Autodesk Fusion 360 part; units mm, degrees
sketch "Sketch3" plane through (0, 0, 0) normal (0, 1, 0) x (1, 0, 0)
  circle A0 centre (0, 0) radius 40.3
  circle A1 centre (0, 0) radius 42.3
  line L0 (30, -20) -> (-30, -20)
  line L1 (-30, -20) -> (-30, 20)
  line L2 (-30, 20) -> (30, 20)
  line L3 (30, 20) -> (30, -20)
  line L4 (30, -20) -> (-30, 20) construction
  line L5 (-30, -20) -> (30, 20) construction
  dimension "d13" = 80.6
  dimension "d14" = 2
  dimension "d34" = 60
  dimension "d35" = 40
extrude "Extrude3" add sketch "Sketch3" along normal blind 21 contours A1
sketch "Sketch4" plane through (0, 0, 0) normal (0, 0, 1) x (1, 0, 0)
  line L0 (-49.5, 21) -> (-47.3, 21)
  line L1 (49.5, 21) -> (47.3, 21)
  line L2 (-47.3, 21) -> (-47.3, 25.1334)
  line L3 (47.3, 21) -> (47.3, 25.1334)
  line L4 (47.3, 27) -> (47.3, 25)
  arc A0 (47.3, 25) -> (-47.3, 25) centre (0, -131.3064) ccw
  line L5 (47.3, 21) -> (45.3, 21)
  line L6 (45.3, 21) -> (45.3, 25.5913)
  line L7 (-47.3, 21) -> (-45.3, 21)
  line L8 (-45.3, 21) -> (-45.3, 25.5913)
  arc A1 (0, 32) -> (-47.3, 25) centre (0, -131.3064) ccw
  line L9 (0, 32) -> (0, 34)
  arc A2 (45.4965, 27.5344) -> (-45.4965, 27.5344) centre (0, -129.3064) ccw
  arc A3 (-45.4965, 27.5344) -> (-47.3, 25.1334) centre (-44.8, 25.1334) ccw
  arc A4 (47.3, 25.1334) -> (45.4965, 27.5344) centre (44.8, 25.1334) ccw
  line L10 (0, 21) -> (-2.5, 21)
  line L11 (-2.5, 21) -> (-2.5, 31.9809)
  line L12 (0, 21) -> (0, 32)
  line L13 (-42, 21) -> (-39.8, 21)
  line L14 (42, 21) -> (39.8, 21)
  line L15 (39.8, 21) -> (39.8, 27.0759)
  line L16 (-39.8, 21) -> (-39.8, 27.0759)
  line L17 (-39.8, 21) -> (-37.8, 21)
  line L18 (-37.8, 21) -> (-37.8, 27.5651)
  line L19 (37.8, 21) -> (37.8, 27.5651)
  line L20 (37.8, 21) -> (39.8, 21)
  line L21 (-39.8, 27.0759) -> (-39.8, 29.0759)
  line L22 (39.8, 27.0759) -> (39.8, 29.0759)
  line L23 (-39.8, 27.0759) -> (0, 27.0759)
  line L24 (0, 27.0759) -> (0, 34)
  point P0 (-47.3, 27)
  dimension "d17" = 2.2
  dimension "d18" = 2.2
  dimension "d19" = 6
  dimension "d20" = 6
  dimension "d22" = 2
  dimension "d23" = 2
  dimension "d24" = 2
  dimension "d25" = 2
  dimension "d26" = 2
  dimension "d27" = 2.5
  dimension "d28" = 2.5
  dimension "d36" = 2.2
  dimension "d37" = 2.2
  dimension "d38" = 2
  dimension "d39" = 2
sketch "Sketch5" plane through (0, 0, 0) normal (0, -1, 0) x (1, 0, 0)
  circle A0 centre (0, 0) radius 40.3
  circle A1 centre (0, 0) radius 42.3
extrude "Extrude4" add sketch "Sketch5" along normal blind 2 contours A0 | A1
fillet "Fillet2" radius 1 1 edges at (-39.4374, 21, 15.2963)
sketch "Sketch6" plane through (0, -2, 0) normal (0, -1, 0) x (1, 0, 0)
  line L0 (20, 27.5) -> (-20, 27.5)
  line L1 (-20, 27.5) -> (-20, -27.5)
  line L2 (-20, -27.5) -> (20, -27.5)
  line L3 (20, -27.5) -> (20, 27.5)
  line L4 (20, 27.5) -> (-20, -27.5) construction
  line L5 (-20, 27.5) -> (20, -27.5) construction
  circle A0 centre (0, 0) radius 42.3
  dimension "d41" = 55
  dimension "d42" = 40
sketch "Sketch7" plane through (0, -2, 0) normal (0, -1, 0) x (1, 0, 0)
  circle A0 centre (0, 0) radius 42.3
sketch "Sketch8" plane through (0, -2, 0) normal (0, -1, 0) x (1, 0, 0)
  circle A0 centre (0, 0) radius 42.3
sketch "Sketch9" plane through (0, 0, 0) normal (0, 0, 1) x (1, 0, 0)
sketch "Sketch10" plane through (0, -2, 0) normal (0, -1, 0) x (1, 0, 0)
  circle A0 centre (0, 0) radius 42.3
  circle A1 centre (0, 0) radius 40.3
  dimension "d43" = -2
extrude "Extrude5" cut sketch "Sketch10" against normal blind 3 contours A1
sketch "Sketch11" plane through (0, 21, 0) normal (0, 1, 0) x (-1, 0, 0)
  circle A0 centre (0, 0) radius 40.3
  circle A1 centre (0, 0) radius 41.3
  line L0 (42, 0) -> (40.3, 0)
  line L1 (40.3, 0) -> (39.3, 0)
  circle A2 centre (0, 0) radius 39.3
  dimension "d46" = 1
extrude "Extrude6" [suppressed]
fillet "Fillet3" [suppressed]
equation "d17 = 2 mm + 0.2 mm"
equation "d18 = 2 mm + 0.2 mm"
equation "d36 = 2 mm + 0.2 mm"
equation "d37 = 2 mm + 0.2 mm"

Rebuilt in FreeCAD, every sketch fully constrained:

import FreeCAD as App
import Part
import Sketcher

V = App.Vector


def edges_at(feature, points):
    """Names of the edges that pass closest to the given points."""
    edges = feature.Shape.Edges
    near = lambda p: min(range(len(edges)), key=lambda i: edges[i].distToShape(Part.Vertex(*p))[0])
    return sorted({f"Edge{near(p) + 1}" for p in points})

doc = App.newDocument("Part")
body = doc.addObject("PartDesign::Body", "Body")

# Sketch on XZ plane
sketch1 = doc.addObject("Sketcher::SketchObject", "Sketch")
body.addObject(sketch1)
sketch1.AttachmentSupport = (doc.XZ_Plane, [""])
sketch1.MapMode = "FlatFace"
sketch1.addGeometry([
    Part.Circle(V(0, 0, 0), V(0, 0, 1), 42),
    Part.Circle(V(0, 0, 0), V(0, 0, 1), 40),
], False)
sketch1.addConstraint([
    Sketcher.Constraint("Coincident", 0, 3, -1, 1),
    Sketcher.Constraint("Coincident", 1, 3, -1, 1),
    Sketcher.Constraint("Diameter", 1, 80.6),
    Sketcher.Constraint("Diameter", 0, 84.6),
])
pad1 = doc.addObject("PartDesign::Pad", "Pad")
body.addObject(pad1)
pad1.Profile = sketch1
pad1.Length = 21
pad1.Reversed = True

# Sketch on XZ plane
sketch2 = doc.addObject("Sketcher::SketchObject", "Sketch001")
body.addObject(sketch2)
sketch2.AttachmentSupport = (doc.XZ_Plane, [""])
sketch2.MapMode = "FlatFace"
sketch2.addGeometry(Part.Circle(V(0, 0, 0), V(0, 0, 1), 42), False)
sketch2.addConstraint([
    Sketcher.Constraint("Coincident", 0, 3, -1, 1),
    Sketcher.Constraint("Diameter", 0, 84.6),
])
pad2 = doc.addObject("PartDesign::Pad", "Pad001")
body.addObject(pad2)
pad2.Profile = sketch2
pad2.Length = 2
doc.recompute()

fillet = doc.addObject("PartDesign::Fillet", "Fillet")
body.addObject(fillet)
fillet.Base = (pad2, edges_at(pad2, [(-39.437, 21, 15.296)]))
fillet.Radius = 1

# Sketch on XZ plane
sketch3 = doc.addObject("Sketcher::SketchObject", "Sketch002")
body.addObject(sketch3)
sketch3.AttachmentSupport = (doc.XZ_Plane, [""])
sketch3.MapMode = "FlatFace"
sketch3.AttachmentOffset = App.Placement(V(0, 0, 2), App.Rotation())
sketch3.addGeometry(Part.Circle(V(0, 0, 0), V(0, 0, 1), 40), False)
sketch3.addConstraint([
    Sketcher.Constraint("Coincident", 0, 3, -1, 1),
    Sketcher.Constraint("Diameter", 0, 80.6),
])
pocket1 = doc.addObject("PartDesign::Pocket", "Pocket")
body.addObject(pocket1)
pocket1.Profile = sketch3
pocket1.Length = 3

doc.recompute()
